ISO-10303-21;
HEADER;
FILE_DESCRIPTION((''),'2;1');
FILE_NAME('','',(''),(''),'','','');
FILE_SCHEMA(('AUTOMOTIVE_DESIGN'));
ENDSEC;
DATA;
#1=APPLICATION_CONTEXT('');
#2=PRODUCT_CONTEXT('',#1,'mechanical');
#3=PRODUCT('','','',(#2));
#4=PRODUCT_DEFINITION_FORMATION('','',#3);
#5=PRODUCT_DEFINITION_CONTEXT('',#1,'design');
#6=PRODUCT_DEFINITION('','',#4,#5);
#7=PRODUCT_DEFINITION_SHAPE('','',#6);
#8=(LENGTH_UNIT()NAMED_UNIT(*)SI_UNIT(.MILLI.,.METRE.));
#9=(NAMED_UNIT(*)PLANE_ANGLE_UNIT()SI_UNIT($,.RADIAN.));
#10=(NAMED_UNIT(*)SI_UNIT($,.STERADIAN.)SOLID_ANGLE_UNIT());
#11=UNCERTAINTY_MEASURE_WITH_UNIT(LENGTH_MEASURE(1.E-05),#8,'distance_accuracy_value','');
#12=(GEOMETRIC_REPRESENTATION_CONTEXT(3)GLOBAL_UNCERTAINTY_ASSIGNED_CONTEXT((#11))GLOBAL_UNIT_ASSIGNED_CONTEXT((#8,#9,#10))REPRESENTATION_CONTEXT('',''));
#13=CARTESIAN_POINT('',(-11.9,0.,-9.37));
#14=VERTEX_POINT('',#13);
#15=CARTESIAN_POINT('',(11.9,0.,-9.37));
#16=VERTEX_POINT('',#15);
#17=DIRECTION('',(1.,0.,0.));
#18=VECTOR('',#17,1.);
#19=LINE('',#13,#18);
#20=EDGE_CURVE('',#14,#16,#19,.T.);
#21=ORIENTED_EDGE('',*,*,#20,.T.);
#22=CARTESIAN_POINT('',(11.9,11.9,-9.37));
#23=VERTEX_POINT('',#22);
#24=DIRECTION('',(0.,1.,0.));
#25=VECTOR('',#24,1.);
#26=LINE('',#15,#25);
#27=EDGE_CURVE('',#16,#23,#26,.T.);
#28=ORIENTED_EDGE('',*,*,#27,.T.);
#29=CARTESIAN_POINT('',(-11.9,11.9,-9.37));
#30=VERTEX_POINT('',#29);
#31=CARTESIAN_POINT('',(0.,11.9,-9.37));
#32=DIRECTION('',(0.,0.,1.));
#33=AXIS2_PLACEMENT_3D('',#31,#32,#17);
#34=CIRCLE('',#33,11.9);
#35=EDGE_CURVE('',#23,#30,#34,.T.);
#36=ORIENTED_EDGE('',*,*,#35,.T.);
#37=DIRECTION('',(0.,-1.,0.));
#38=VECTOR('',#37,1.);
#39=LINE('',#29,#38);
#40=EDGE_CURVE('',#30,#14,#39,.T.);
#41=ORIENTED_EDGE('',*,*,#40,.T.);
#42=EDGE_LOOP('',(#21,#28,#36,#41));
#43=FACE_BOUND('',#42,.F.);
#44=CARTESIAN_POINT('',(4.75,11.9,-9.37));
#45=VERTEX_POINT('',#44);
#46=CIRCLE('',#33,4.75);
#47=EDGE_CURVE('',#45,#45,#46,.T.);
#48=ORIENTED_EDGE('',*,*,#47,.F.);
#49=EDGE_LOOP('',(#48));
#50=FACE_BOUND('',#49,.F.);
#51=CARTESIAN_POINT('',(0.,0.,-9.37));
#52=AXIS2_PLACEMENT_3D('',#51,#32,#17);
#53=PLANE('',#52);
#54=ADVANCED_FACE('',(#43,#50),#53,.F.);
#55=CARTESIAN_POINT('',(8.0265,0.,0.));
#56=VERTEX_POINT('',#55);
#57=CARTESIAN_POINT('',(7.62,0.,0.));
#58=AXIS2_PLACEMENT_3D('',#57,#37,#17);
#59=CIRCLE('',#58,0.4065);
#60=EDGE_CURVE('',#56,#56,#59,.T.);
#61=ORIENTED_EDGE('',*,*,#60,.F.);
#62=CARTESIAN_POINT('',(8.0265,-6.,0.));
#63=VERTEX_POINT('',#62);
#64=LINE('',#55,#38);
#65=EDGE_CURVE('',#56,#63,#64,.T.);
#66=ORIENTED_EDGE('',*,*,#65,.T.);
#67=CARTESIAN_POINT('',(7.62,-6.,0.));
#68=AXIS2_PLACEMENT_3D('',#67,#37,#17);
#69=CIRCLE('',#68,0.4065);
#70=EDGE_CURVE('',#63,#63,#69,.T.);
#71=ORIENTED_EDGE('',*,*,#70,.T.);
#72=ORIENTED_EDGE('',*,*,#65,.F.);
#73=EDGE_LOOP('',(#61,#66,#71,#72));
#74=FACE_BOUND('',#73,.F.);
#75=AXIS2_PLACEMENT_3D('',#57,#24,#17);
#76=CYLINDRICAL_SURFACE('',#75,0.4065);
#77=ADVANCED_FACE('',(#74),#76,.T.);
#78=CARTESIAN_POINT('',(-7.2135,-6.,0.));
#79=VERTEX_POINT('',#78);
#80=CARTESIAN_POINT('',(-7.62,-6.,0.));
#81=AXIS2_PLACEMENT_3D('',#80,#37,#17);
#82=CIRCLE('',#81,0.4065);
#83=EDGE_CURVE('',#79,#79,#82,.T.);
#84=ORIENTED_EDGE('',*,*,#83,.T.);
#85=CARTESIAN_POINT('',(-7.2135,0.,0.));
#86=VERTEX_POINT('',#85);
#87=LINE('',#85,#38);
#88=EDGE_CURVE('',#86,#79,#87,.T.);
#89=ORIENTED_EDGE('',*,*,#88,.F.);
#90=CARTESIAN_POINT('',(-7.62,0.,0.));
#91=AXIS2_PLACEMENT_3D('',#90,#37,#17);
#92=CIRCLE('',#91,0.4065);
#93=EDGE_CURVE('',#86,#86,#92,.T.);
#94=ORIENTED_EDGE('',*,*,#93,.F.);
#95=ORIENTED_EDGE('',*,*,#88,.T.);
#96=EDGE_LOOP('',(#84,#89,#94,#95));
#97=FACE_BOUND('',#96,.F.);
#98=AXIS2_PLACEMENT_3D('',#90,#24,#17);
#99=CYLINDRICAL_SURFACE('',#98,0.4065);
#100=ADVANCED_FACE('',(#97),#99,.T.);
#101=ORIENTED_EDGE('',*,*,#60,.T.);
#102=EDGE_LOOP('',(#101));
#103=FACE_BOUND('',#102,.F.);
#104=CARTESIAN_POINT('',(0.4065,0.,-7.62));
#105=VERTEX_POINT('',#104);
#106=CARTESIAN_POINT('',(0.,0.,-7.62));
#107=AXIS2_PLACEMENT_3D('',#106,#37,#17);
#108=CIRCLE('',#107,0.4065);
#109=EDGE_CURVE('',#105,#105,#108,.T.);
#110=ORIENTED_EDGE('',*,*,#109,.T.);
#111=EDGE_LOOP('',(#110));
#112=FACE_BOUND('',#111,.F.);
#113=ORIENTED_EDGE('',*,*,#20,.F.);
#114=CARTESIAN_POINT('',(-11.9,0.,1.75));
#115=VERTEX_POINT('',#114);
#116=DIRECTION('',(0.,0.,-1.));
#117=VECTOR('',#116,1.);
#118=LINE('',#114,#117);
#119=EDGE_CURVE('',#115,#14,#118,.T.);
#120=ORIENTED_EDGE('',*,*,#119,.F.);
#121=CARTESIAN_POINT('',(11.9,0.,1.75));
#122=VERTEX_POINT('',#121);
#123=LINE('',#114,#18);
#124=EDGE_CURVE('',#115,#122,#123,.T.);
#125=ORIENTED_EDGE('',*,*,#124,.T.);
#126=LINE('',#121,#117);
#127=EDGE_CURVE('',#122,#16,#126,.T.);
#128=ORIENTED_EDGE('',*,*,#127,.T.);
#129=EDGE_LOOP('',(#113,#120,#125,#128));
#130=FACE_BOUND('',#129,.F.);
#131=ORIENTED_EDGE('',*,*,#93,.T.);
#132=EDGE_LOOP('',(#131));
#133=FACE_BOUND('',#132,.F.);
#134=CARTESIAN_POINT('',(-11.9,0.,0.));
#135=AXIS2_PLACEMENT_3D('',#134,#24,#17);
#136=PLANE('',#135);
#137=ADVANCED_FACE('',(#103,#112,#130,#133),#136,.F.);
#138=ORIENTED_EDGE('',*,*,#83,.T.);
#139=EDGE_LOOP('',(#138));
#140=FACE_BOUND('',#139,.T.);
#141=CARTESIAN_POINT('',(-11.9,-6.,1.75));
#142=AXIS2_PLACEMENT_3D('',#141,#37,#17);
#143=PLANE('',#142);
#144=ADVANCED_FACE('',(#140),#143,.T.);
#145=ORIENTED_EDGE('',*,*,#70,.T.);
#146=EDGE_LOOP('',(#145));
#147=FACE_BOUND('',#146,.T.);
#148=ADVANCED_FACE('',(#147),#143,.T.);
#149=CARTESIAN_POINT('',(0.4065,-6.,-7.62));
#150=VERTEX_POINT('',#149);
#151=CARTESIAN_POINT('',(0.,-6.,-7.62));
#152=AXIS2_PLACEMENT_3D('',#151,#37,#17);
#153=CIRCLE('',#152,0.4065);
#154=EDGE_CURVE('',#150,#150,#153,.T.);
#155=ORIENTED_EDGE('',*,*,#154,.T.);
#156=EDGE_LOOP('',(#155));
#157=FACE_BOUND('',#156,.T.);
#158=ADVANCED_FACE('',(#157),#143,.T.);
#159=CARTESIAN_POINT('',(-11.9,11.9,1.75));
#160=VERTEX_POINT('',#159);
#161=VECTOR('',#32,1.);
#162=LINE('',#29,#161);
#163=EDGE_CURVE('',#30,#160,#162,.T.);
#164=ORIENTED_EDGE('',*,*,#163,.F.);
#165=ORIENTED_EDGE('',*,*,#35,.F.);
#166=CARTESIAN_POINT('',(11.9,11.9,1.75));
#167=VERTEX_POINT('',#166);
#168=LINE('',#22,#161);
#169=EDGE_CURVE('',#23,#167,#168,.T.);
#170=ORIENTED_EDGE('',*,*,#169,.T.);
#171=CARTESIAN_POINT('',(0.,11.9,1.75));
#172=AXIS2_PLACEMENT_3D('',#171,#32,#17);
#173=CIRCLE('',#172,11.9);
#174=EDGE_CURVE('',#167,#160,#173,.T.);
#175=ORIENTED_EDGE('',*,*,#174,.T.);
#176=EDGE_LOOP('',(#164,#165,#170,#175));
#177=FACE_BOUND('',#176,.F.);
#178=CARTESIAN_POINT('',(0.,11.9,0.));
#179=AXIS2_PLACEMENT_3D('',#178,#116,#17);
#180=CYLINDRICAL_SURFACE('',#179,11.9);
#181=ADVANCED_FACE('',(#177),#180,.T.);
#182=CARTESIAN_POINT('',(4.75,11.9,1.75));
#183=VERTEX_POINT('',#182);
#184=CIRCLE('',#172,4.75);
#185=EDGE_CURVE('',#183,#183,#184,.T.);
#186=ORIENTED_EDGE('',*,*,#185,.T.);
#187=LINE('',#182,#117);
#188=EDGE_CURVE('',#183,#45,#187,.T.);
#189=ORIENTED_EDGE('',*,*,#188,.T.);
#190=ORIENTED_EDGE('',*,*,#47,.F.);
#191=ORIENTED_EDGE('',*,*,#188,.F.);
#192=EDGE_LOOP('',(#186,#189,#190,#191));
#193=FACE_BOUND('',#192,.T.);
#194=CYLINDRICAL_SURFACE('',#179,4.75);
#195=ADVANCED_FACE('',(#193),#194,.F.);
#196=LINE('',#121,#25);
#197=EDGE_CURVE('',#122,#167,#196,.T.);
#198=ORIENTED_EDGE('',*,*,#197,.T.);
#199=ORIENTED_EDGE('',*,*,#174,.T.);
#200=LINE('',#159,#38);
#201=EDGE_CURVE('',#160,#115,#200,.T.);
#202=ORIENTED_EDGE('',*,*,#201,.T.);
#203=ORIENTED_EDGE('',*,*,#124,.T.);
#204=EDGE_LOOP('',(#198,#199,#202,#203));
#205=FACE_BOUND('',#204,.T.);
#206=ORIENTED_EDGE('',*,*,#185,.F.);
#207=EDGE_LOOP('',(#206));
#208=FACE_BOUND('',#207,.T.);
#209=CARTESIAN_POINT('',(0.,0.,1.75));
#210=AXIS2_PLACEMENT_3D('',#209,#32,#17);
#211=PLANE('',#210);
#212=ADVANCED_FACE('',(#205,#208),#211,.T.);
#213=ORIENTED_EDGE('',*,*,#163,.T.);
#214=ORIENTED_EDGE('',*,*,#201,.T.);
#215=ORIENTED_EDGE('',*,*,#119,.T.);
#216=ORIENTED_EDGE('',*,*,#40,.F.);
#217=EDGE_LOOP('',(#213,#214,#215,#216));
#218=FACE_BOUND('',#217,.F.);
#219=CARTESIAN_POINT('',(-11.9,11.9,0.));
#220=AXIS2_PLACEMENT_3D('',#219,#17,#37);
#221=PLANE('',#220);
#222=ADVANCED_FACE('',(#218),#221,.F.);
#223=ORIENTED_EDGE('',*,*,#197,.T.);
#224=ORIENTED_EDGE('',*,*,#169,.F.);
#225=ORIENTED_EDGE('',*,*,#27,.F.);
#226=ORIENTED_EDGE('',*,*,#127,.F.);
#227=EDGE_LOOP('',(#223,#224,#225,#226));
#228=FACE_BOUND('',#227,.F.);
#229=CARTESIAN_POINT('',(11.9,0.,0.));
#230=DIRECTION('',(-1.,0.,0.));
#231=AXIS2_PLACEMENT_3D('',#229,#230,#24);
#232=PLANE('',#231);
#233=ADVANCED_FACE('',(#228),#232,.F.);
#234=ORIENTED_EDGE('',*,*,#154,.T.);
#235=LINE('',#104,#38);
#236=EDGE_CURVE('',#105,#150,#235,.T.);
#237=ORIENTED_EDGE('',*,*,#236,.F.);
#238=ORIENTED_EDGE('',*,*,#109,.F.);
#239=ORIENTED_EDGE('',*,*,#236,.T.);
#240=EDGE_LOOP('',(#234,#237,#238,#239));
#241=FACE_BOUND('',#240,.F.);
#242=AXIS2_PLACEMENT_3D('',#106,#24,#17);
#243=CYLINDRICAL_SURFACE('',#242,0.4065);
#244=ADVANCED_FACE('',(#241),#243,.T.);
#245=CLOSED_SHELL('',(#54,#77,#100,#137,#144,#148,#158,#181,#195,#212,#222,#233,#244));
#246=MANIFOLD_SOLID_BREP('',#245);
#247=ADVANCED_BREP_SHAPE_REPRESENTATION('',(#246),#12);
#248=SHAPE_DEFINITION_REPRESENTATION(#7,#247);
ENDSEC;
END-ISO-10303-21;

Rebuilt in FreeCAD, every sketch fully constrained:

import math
import FreeCAD as App
import Part
import Sketcher

doc = App.newDocument("Part")
params = doc.addObject("Spreadsheet::Sheet", "Params")
for row, (alias, value) in enumerate([
    ("sketch1_diameter", "9.5 mm"),
    ("sketch1_radius", "11.9 mm"),
    ("sketch1_height", "11.9 mm"),
    ("pad1_length", "1.75 mm"),
    ("pad1_length2", "9.37 mm"),
    ("pad2_length", "6 mm"),
], start=1):
    params.set(f"A{row}", alias)
    params.set(f"B{row}", "=" + value)
    params.setAlias(f"B{row}", alias)

body = doc.addObject("PartDesign::Body", "Body")

sketch1 = body.newObject("Sketcher::SketchObject", "Sketch")
sketch1.AttachmentSupport = (doc.getObject("XY_Plane"), [""])
sketch1.MapMode = "FlatFace"
sketch1.addGeometry([
    Part.LineSegment(App.Vector(11.9, 0, 0), App.Vector(11.9, 11.9, 0)),
    Part.ArcOfCircle(Part.Circle(App.Vector(0, 11.9, 0), App.Vector(0, 0, 1), 11.9), math.radians(0), math.radians(180)),
    Part.LineSegment(App.Vector(-11.9, 11.9, 0), App.Vector(-11.9, 0, 0)),
    Part.LineSegment(App.Vector(-11.9, 0, 0), App.Vector(11.9, 0, 0)),
    Part.Circle(App.Vector(0, 11.9, 0), App.Vector(0, 0, 1), 4.8),
], False)
sketch1.addConstraint([
    Sketcher.Constraint("Tangent", 0, 2, 1, 1),
    Sketcher.Constraint("Tangent", 1, 2, 2, 1),
    Sketcher.Constraint("Coincident", 2, 2, 3, 1),
    Sketcher.Constraint("Coincident", 3, 2, 0, 1),
    Sketcher.Constraint("Vertical", 0),
    Sketcher.Constraint("Vertical", 2),
    Sketcher.Constraint("Horizontal", 3),
    Sketcher.Constraint("Coincident", 4, 3, 1, 3),
    Sketcher.Constraint("Symmetric", 2, 2, 3, 2, -1, 1),
    Sketcher.Constraint("Diameter", 4, 9.5),
    Sketcher.Constraint("Radius", 1, 11.9),
    Sketcher.Constraint("DistanceY", 0, 1, 0, 2, 11.9),
])
sketch1.setExpression("Constraints[9]", "Params.sketch1_diameter")
sketch1.setExpression("Constraints[10]", "Params.sketch1_radius")
sketch1.setExpression("Constraints[11]", "Params.sketch1_height")
pad1 = body.newObject("PartDesign::Pad", "Pad")
pad1.Profile = sketch1
pad1.Type = "TwoLengths"
pad1.setExpression("Length", "Params.pad1_length")
pad1.setExpression("Length2", "Params.pad1_length2")

sketch2 = body.newObject("Sketcher::SketchObject", "Sketch001")
sketch2.AttachmentSupport = (doc.getObject("XZ_Plane"), [""])
sketch2.MapMode = "FlatFace"
sketch2.addGeometry([
    Part.Circle(App.Vector(-7.62, 0, 0), App.Vector(0, 0, 1), 0.41),
    Part.Circle(App.Vector(7.62, 0, 0), App.Vector(0, 0, 1), 0.41),
    Part.Circle(App.Vector(0, -7.62, 0), App.Vector(0, 0, 1), 0.41),
], False)
sketch2.addConstraint([
    Sketcher.Constraint("Equal", 0, 1),
    Sketcher.Constraint("Equal", 1, 2),
    Sketcher.Constraint("Symmetric", 0, 3, 1, 3, -1, 1),
    Sketcher.Constraint("PointOnObject", 0, 3, -1),
    Sketcher.Constraint("PointOnObject", 2, 3, -2),
    Sketcher.Constraint("Diameter", 0, 0.813),
    Sketcher.Constraint("DistanceX", 0, 3, -1, 1, 7.62),
    Sketcher.Constraint("DistanceY", 2, 3, -1, 1, 7.62),
])
pad2 = body.newObject("PartDesign::Pad", "Pad001")
pad2.Profile = sketch2
pad2.setExpression("Length", "Params.pad2_length")

doc.recompute()
